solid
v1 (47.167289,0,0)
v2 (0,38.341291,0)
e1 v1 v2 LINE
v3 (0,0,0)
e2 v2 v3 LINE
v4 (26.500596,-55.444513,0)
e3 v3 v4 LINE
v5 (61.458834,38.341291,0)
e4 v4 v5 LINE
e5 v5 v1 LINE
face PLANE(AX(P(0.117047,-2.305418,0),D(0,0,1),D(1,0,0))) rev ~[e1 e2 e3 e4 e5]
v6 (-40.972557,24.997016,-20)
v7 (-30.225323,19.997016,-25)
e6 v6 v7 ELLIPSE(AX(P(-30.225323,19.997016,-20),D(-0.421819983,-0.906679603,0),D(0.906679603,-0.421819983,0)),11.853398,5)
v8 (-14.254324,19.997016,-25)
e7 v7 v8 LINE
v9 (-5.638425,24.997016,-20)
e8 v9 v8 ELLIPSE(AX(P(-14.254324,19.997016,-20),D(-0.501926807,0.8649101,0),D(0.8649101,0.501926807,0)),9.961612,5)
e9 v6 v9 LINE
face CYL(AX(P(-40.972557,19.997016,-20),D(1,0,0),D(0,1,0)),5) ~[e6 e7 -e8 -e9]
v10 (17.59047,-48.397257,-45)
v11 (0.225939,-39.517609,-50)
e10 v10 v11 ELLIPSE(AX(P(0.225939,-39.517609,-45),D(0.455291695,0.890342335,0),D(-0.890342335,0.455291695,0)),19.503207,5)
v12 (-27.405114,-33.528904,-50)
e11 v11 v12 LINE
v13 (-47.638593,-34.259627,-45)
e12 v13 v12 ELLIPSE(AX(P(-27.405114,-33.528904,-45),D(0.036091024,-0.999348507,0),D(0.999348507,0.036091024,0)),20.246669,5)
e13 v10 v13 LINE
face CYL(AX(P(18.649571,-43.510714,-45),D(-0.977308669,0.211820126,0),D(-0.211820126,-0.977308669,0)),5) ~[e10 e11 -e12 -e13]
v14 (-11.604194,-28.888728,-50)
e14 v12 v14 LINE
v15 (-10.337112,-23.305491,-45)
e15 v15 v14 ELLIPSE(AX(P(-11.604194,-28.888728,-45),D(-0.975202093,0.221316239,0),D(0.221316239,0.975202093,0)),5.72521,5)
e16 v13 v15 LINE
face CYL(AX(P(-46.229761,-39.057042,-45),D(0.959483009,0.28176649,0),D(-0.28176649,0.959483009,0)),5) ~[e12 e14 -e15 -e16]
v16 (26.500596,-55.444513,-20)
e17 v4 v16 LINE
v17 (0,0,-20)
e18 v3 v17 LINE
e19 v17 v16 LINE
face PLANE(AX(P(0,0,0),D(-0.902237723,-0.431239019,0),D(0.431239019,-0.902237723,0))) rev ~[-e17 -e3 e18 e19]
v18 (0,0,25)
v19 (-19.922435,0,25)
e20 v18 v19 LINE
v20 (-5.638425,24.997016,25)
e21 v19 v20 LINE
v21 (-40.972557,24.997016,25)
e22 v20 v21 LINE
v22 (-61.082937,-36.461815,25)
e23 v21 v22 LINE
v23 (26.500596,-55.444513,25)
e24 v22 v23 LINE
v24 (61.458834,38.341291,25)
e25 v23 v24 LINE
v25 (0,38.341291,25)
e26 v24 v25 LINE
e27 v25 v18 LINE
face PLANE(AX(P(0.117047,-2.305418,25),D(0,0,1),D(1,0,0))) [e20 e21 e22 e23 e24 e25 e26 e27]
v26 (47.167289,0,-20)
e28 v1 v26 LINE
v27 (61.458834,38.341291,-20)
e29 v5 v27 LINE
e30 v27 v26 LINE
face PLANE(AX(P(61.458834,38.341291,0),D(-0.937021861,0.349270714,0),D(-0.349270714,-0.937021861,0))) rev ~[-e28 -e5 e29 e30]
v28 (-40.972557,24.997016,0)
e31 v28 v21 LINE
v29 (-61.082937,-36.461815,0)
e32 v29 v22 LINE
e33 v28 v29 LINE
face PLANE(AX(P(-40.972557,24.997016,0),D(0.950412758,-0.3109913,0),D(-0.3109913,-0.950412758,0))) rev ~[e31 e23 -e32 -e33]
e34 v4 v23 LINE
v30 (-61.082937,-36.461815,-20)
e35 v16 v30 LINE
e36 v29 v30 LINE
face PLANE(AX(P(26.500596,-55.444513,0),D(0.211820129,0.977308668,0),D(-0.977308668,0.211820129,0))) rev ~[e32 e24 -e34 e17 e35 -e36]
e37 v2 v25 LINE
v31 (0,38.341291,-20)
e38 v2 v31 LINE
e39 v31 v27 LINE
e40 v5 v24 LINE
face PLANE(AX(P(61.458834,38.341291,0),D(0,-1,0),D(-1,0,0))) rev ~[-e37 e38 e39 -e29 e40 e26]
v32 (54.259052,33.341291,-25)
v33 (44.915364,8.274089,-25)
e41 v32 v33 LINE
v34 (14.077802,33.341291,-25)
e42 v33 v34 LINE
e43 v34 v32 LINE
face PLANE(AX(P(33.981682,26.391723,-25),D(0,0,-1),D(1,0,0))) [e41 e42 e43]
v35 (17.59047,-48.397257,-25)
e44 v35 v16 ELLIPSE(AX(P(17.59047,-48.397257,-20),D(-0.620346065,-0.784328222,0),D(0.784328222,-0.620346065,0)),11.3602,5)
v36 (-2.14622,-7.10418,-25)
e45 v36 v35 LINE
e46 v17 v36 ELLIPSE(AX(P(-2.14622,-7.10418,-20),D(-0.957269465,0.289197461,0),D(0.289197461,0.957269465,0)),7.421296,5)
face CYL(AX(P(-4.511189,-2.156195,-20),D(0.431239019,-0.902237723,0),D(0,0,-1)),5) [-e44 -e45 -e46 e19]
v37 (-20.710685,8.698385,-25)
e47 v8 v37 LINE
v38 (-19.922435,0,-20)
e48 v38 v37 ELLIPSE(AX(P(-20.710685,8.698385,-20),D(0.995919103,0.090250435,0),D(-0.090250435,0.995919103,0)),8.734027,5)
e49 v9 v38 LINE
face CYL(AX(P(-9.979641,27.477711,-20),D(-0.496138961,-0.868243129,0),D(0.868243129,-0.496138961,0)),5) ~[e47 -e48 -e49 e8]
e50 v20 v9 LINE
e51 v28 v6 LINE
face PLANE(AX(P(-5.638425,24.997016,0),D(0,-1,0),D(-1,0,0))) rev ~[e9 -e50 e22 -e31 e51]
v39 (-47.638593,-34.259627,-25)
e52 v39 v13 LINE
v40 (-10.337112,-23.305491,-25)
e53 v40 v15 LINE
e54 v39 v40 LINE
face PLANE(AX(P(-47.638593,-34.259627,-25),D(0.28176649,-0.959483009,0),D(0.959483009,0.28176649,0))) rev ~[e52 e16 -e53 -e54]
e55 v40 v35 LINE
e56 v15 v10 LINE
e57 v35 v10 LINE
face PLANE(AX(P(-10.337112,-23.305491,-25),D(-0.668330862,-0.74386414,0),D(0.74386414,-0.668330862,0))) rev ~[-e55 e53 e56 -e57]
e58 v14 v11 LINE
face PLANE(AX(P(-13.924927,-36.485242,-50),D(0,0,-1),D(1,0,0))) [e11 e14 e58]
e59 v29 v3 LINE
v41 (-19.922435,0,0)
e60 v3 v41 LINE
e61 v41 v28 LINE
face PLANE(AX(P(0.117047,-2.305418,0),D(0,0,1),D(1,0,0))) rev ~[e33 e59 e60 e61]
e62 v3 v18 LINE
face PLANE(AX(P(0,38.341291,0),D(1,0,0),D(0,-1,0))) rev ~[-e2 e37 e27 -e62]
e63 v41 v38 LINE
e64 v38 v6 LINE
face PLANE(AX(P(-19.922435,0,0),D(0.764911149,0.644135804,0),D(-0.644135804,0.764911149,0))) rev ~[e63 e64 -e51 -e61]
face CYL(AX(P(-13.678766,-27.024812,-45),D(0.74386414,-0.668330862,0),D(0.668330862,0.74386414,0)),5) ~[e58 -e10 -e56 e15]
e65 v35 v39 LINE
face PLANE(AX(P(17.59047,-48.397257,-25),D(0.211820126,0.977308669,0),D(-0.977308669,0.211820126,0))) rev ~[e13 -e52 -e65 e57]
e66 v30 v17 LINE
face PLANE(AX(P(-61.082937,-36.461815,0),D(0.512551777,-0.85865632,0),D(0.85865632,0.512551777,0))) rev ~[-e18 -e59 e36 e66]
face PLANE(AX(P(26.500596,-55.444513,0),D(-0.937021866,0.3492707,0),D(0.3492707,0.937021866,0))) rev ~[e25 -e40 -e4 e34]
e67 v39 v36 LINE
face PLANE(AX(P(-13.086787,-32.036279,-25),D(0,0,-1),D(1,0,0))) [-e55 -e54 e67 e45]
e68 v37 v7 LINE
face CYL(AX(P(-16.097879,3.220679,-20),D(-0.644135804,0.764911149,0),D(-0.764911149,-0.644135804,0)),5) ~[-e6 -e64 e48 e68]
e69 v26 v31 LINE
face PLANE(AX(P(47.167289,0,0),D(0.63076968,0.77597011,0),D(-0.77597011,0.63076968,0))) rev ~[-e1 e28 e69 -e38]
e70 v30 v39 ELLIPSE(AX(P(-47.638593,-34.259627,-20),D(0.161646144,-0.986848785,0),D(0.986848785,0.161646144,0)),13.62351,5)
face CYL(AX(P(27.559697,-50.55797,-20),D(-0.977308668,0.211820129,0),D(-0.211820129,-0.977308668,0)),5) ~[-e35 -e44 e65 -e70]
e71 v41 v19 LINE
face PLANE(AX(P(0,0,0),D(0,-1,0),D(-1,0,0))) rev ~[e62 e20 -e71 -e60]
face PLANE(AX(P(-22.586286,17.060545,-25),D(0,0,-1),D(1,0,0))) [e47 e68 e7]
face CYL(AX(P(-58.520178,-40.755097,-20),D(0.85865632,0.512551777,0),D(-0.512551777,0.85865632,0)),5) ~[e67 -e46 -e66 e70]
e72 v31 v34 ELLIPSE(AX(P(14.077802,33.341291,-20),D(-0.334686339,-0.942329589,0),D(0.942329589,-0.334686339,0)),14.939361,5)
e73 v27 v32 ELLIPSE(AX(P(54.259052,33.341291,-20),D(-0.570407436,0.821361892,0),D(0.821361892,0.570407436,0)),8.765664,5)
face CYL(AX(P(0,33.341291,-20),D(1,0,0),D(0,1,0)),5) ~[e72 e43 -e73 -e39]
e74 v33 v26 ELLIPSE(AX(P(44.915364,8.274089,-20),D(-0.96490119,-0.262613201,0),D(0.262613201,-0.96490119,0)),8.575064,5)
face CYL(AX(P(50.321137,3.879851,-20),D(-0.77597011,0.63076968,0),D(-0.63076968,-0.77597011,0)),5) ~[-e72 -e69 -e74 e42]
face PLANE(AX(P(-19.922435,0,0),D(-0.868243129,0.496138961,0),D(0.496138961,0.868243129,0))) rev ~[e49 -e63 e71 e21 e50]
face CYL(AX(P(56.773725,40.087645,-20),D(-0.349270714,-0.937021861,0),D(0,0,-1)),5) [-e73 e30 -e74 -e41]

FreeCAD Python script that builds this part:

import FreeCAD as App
import Part
import Sketcher
Q = App.Units.Quantity


def edges_at(feature, points):
    """Names of the edges that pass closest to the given points."""
    edges = feature.Shape.Edges
    near = lambda p: min(range(len(edges)), key=lambda i: edges[i].distToShape(Part.Vertex(*p))[0])
    return sorted({f"Edge{near(p) + 1}" for p in points})


def add_polygon(sketch, points):
    """Adds a closed chain of lines whose ends are joined by coincident constraints."""
    first, n = sketch.GeometryCount, len(points)
    for a, b in zip(points, points[1:] + points[:1]):
        sketch.addGeometry(Part.LineSegment(App.Vector(*a, 0), App.Vector(*b, 0)), False)
    for i in range(n):
        sketch.addConstraint(Sketcher.Constraint("Coincident", first + i, 2, first + (i + 1) % n, 1))

doc = App.newDocument("Part")
body = doc.addObject("PartDesign::Body", "Body")

sketch1 = doc.addObject("Sketcher::SketchObject", "Sketch")
body.addObject(sketch1)
sketch1.AttachmentSupport = (doc.XY_Plane, [""])
sketch1.MapMode = "FlatFace"
add_polygon(sketch1, [(0, 38), (0, 0), (-20, 0), (-6, 25), (-41, 25), (-61, -36), (27, -55), (61, 38)])
sketch1.addConstraint([
    Sketcher.Constraint("Vertical", 0),
    Sketcher.Constraint("Horizontal", 1),
    Sketcher.Constraint("Horizontal", 3),
    Sketcher.Constraint("Horizontal", 7),
    Sketcher.Constraint("Coincident", 0, 2, -1, 1),
    Sketcher.Constraint("DistanceY", 0, 2, 0, 1, Q("38.341291 mm")),
    Sketcher.Constraint("Distance", 2, Q("28.790341 mm")),
    Sketcher.Constraint("Distance", 4, Q("64.66541 mm")),
    Sketcher.Constraint("DistanceX", 1, 2, 1, 1, Q("19.922435 mm")),
    Sketcher.Constraint("DistanceX", 3, 2, 3, 1, Q("35.334132 mm")),
    Sketcher.Constraint("DistanceX", 7, 2, 7, 1, Q("61.458834 mm")),
    Sketcher.Constraint("DistanceX", 1, 2, 2, 2, Q("14.28401 mm")),
    Sketcher.Constraint("DistanceX", 4, 2, 3, 2, Q("20.11038 mm")),
    Sketcher.Constraint("DistanceX", 1, 2, 5, 2, Q("46.423031 mm")),
    Sketcher.Constraint("DistanceY", 5, 2, 2, 2, Q("80.441529 mm")),
])
pad1 = doc.addObject("PartDesign::Pad", "Pad")
body.addObject(pad1)
pad1.Profile = sketch1
pad1.Length = 25

sketch2 = doc.addObject("Sketcher::SketchObject", "Sketch001")
body.addObject(sketch2)
sketch2.AttachmentSupport = (doc.XY_Plane, [""])
sketch2.MapMode = "FlatFace"
add_polygon(sketch2, [(27, -55), (-61, -36), (0, 0)])
add_polygon(sketch2, [(-6, 25), (-20, 0), (-41, 25)])
add_polygon(sketch2, [(61, 38), (47, 0), (0, 38)])
sketch2.addConstraint([
    Sketcher.Constraint("Horizontal", 5),
    Sketcher.Constraint("Horizontal", 8),
    Sketcher.Constraint("Coincident", 1, 2, -1, 1),
    Sketcher.Constraint("PointOnObject", 3, 2, -1),
    Sketcher.Constraint("PointOnObject", 6, 2, -1),
    Sketcher.Constraint("PointOnObject", 7, 2, -2),
    Sketcher.Constraint("Distance", 3, Q("28.790341 mm")),
    Sketcher.Constraint("Distance", 7, Q("60.78493 mm")),
    Sketcher.Constraint("DistanceX", 5, 1, 5, 2, Q("35.334132 mm")),
    Sketcher.Constraint("DistanceX", 8, 1, 8, 2, Q("61.458834 mm")),
    Sketcher.Constraint("DistanceX", -1, 1, 6, 2, Q("47.167289 mm")),
    Sketcher.Constraint("DistanceX", 3, 2, 2, 2, Q("46.423031 mm")),
    Sketcher.Constraint("DistanceX", 0, 2, 4, 2, Q("20.11038 mm")),
    Sketcher.Constraint("DistanceY", 0, 2, 4, 2, Q("61.458831 mm")),
    Sketcher.Constraint("DistanceY", 2, 2, 4, 2, Q("80.441529 mm")),
    Sketcher.Constraint("DistanceX", 3, 2, 5, 2, Q("14.28401 mm")),
    Sketcher.Constraint("DistanceX", 5, 2, 8, 2, Q("67.097259 mm")),
])
pad2 = doc.addObject("PartDesign::Pad", "Pad001")
body.addObject(pad2)
pad2.Profile = sketch2
pad2.Length = 25
pad2.Reversed = True
doc.recompute()

fillet = doc.addObject("PartDesign::Fillet", "Fillet")
body.addObject(fillet)
fillet.Base = (pad2, edges_at(pad2, [(-30.541, -18.231, -25), (13.25, -27.722, -25), (-17.291, -45.953, -25)]))
fillet.Radius = 5
doc.recompute()

fillet2 = doc.addObject("PartDesign::Fillet", "Fillet001")
body.addObject(fillet2)
fillet2.Base = (fillet, edges_at(fillet, [(-23.305, 24.997, -25), (-30.447, 12.499, -25), (-12.78, 12.499, -25)]))
fillet2.Radius = 5
doc.recompute()

fillet3 = doc.addObject("PartDesign::Fillet", "Fillet002")
body.addObject(fillet3)
fillet3.Base = (fillet2, edges_at(fillet2, [(30.729, 38.341, -25), (54.313, 19.171, -25), (23.584, 19.171, -25)]))
fillet3.Radius = 5

sketch3 = doc.addObject("Sketcher::SketchObject", "Sketch002")
body.addObject(sketch3)
sketch3.AttachmentSupport = (doc.XY_Plane, [""])
sketch3.MapMode = "FlatFace"
sketch3.AttachmentOffset = App.Placement(App.Vector(0, 0, -25), App.Rotation())
add_polygon(sketch3, [(18, -48), (-48, -34), (-10, -23)])
sketch3.addConstraint([
    Sketcher.Constraint("Distance", 2, Q("37.543928 mm")),
    Sketcher.Constraint("DistanceY", 1, 2, -1, 1, Q("23.305491 mm")),
    Sketcher.Constraint("DistanceX", -1, 1, 2, 2, Q("17.59047 mm")),
    Sketcher.Constraint("DistanceX", 0, 2, 1, 2, Q("37.301481 mm")),
    Sketcher.Constraint("DistanceY", 2, 2, 0, 2, Q("14.13763 mm")),
    Sketcher.Constraint("Distance", 0, Q("66.743563 mm")),
])
pad3 = doc.addObject("PartDesign::Pad", "Pad002")
body.addObject(pad3)
pad3.Profile = sketch3
pad3.Length = 25
pad3.Reversed = True
doc.recompute()

fillet4 = doc.addObject("PartDesign::Fillet", "Fillet003")
body.addObject(fillet4)
fillet4.Base = (pad3, edges_at(pad3, [(-28.988, -28.783, -50), (-15.024, -41.328, -50), (3.627, -35.851, -50)]))
fillet4.Radius = 5

doc.recompute()
